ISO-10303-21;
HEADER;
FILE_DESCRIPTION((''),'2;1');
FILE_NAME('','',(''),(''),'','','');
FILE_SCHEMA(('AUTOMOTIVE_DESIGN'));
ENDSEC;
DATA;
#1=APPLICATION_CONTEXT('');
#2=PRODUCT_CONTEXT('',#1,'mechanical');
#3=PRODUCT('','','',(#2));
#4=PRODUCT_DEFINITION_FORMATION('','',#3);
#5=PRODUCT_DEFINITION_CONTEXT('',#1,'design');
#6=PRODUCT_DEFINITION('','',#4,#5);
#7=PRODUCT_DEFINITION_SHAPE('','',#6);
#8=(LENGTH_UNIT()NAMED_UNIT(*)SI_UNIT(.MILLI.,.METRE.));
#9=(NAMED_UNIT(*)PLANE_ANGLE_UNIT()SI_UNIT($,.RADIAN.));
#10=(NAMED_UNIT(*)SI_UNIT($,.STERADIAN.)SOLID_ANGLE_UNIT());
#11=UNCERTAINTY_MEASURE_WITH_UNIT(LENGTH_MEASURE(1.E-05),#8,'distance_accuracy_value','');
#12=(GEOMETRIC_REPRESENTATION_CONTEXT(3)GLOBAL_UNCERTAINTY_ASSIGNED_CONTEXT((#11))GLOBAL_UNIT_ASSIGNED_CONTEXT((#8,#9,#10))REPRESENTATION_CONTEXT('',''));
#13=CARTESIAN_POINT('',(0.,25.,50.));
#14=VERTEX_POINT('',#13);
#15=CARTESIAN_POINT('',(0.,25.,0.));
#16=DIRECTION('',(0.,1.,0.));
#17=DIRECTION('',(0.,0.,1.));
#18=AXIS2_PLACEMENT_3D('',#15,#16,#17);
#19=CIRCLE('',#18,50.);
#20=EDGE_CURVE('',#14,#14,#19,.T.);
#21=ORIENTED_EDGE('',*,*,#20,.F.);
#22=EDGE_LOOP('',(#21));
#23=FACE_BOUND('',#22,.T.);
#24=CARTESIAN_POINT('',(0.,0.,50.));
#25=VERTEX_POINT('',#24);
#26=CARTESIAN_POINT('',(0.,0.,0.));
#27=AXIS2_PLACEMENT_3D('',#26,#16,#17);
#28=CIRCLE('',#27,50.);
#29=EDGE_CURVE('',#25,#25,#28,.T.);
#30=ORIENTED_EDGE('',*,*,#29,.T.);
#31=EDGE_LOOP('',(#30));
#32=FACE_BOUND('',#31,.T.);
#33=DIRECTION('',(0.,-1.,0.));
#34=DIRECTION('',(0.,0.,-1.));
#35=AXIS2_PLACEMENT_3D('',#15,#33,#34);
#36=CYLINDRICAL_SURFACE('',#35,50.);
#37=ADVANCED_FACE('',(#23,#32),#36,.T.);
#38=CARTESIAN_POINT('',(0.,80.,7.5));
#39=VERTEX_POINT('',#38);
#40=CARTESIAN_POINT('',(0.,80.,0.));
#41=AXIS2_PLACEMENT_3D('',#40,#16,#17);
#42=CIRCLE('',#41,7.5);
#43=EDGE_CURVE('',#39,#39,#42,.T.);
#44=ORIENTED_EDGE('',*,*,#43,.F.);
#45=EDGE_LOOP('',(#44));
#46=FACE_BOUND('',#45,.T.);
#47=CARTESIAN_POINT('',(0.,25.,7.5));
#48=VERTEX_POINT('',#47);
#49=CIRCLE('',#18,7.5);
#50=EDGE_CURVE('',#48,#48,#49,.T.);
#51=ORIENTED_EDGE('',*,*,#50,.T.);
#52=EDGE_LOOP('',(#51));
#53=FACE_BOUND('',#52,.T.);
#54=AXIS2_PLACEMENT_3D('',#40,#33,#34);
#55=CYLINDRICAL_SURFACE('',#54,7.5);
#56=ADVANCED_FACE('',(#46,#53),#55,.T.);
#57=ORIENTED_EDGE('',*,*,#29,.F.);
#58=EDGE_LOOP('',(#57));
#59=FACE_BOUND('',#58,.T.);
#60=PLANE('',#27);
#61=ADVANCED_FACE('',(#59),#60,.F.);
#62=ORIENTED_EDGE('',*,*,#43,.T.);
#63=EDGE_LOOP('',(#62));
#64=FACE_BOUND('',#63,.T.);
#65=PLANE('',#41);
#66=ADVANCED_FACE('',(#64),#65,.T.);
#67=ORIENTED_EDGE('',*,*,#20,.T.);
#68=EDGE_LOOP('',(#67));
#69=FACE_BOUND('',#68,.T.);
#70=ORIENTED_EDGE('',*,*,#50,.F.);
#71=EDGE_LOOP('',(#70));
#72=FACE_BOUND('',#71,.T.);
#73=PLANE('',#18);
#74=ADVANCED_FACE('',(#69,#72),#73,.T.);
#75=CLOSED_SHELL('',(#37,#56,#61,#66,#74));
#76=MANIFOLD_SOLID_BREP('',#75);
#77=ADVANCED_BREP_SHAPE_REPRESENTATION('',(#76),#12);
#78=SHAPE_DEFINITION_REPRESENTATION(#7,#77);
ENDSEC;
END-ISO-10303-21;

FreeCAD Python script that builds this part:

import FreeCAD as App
import Part
import Sketcher

V = App.Vector

doc = App.newDocument("Part")
body = doc.addObject("PartDesign::Body", "Body")

sketch1 = body.newObject("Sketcher::SketchObject", "Sketch")
sketch1.AttachmentSupport = (doc.getObject("XZ_Plane"), [""])
sketch1.MapMode = "FlatFace"
sketch1.addGeometry(Part.Circle(V(0, 0, 0), V(0, 0, 1), 50), False)
sketch1.addConstraint(Sketcher.Constraint("Coincident", 0, 3, -1, 1))
sketch1.addConstraint(Sketcher.Constraint("Diameter", 0, 100.0))
pad1 = body.newObject("PartDesign::Pad", "Pad")
pad1.Profile = sketch1
pad1.Length = 25
pad1.Reversed = True

sketch2 = body.newObject("Sketcher::SketchObject", "Sketch001")
sketch2.AttachmentSupport = (doc.getObject("XZ_Plane"), [""])
sketch2.MapMode = "FlatFace"
sketch2.AttachmentOffset = App.Placement(V(0, 0, -25), App.Rotation())
sketch2.addGeometry(Part.Circle(V(0, 0, 0), V(0, 0, 1), 7.5), False)
sketch2.addConstraint(Sketcher.Constraint("Coincident", 0, 3, -1, 1))
sketch2.addConstraint(Sketcher.Constraint("Diameter", 0, 15.0))
pad2 = body.newObject("PartDesign::Pad", "Pad001")
pad2.Profile = sketch2
pad2.Length = 55
pad2.Reversed = True

doc.recompute()
